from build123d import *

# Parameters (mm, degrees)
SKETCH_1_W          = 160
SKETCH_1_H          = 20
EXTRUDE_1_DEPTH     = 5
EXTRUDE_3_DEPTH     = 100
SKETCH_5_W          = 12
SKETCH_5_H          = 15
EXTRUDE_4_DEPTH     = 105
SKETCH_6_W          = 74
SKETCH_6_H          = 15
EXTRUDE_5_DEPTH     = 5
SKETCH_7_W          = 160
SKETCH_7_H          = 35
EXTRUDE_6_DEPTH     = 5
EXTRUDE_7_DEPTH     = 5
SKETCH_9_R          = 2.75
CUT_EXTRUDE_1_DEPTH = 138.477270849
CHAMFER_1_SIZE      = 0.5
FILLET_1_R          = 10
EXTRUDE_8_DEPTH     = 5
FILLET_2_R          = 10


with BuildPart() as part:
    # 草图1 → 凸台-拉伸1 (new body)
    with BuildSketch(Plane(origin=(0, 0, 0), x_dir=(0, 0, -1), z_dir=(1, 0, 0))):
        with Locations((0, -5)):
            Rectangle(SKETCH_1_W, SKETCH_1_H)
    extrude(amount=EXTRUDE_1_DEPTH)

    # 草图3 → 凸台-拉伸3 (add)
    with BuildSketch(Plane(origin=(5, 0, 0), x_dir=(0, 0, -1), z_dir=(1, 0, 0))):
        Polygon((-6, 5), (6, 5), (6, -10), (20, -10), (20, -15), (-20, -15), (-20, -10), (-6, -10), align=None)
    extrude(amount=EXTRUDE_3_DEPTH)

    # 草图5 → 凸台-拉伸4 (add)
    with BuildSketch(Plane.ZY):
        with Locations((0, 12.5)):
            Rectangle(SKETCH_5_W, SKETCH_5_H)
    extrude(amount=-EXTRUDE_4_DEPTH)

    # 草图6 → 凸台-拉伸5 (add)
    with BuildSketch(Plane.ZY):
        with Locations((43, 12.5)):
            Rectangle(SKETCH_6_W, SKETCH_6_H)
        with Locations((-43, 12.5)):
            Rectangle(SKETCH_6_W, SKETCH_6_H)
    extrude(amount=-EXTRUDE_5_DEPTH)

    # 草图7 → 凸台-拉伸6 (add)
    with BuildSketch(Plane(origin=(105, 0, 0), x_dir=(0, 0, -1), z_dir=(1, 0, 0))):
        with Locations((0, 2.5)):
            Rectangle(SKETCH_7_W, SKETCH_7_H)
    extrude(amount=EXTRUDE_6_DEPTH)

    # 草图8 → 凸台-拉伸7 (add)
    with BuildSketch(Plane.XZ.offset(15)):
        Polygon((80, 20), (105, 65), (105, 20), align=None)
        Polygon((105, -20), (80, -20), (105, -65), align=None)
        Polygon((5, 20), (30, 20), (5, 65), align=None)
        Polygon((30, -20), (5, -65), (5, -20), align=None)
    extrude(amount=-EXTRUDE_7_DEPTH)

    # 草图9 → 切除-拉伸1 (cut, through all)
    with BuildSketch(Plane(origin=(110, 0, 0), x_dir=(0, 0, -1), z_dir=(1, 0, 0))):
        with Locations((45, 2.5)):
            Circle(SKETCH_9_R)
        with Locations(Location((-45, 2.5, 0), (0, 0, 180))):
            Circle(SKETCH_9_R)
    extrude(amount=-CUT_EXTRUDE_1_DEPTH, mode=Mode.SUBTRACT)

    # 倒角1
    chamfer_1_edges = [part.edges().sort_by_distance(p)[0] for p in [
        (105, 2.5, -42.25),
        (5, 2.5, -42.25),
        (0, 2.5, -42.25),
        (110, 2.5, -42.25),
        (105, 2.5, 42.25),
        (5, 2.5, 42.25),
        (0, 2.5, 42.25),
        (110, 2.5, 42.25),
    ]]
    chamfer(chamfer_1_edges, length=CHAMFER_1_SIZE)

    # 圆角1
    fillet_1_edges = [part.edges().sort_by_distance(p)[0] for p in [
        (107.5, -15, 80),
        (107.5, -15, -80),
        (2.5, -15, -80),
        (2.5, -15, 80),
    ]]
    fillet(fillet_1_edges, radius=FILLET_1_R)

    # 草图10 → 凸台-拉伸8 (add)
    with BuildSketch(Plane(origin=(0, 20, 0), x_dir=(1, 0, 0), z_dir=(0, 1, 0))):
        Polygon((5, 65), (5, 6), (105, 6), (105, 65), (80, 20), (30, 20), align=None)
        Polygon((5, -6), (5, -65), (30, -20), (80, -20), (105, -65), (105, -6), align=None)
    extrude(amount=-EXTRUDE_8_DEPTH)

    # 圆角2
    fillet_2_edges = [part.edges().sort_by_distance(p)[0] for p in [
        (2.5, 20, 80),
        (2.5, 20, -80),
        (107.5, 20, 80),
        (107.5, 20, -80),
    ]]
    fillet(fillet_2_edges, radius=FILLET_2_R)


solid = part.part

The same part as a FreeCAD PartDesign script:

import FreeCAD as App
import Part
import Sketcher
from FreeCAD import Vector


def edges_at(feature, points):
    """Names of the edges that pass closest to the given points."""
    edges = feature.Shape.Edges
    near = lambda p: min(range(len(edges)), key=lambda i: edges[i].distToShape(Part.Vertex(*p))[0])
    return sorted({f"Edge{near(p) + 1}" for p in points})

doc = App.newDocument("Part")
body = doc.addObject("PartDesign::Body", "Body")

sketch1 = doc.addObject("Sketcher::SketchObject", "Sketch")
body.addObject(sketch1)
sketch1.AttachmentSupport = (doc.YZ_Plane, [""])
sketch1.MapMode = "FlatFace"
sketch1.addGeometry([
    Part.LineSegment(Vector(5, 80, 0), Vector(-15, 80, 0)),
    Part.LineSegment(Vector(-15, 80, 0), Vector(-15, -80, 0)),
    Part.LineSegment(Vector(-15, -80, 0), Vector(5, -80, 0)),
    Part.LineSegment(Vector(5, -80, 0), Vector(5, 80, 0)),
], False)
sketch1.addConstraint([
    Sketcher.Constraint("Coincident", 0, 2, 1, 1),
    Sketcher.Constraint("Coincident", 1, 2, 2, 1),
    Sketcher.Constraint("Coincident", 2, 2, 3, 1),
    Sketcher.Constraint("Coincident", 3, 2, 0, 1),
    Sketcher.Constraint("Horizontal", 0),
    Sketcher.Constraint("Vertical", 1),
    Sketcher.Constraint("Horizontal", 2),
    Sketcher.Constraint("Vertical", 3),
    Sketcher.Constraint("DistanceX", 0, 2, 0, 1, 20.0),
    Sketcher.Constraint("DistanceY", 1, 2, 1, 1, 160.0),
    Sketcher.Constraint("DistanceX", 0, 2, -1, 1, 15.0),
    Sketcher.Constraint("DistanceY", -1, 1, 0, 2, 80.0),
])
pad1 = doc.addObject("PartDesign::Pad", "Pad")
body.addObject(pad1)
pad1.Profile = sketch1
pad1.Length = 5

sketch2 = doc.addObject("Sketcher::SketchObject", "Sketch001")
body.addObject(sketch2)
sketch2.AttachmentSupport = (doc.YZ_Plane, [""])
sketch2.MapMode = "FlatFace"
sketch2.AttachmentOffset = App.Placement(Vector(0, 0, 5), App.Rotation())
sketch2.addGeometry([
    Part.LineSegment(Vector(5, -6, 0), Vector(5, 6, 0)),
    Part.LineSegment(Vector(5, 6, 0), Vector(-10, 6, 0)),
    Part.LineSegment(Vector(-10, 6, 0), Vector(-10, 20, 0)),
    Part.LineSegment(Vector(-10, 20, 0), Vector(-15, 20, 0)),
    Part.LineSegment(Vector(-15, 20, 0), Vector(-15, -20, 0)),
    Part.LineSegment(Vector(-15, -20, 0), Vector(-10, -20, 0)),
    Part.LineSegment(Vector(-10, -20, 0), Vector(-10, -6, 0)),
    Part.LineSegment(Vector(-10, -6, 0), Vector(5, -6, 0)),
], False)
sketch2.addConstraint([
    Sketcher.Constraint("Coincident", 0, 2, 1, 1),
    Sketcher.Constraint("Coincident", 1, 2, 2, 1),
    Sketcher.Constraint("Coincident", 2, 2, 3, 1),
    Sketcher.Constraint("Coincident", 3, 2, 4, 1),
    Sketcher.Constraint("Coincident", 4, 2, 5, 1),
    Sketcher.Constraint("Coincident", 5, 2, 6, 1),
    Sketcher.Constraint("Coincident", 6, 2, 7, 1),
    Sketcher.Constraint("Coincident", 7, 2, 0, 1),
    Sketcher.Constraint("Vertical", 0),
    Sketcher.Constraint("Horizontal", 1),
    Sketcher.Constraint("Vertical", 2),
    Sketcher.Constraint("Horizontal", 3),
    Sketcher.Constraint("Vertical", 4),
    Sketcher.Constraint("Horizontal", 5),
    Sketcher.Constraint("Vertical", 6),
    Sketcher.Constraint("Horizontal", 7),
    Sketcher.Constraint("Symmetric", 2, 2, 5, 2, -1),
    Sketcher.Constraint("Equal", 2, 6),
    Sketcher.Constraint("DistanceX", 1, 2, 1, 1, 15.0),
    Sketcher.Constraint("DistanceX", 3, 2, 3, 1, 5.0),
    Sketcher.Constraint("DistanceY", 0, 1, 0, 2, 12.0),
    Sketcher.Constraint("DistanceY", 2, 1, 2, 2, 14.0),
    Sketcher.Constraint("DistanceX", -1, 1, 0, 2, 5.0),
])
pad2 = doc.addObject("PartDesign::Pad", "Pad001")
body.addObject(pad2)
pad2.Profile = sketch2
pad2.Length = 100

sketch3 = doc.addObject("Sketcher::SketchObject", "Sketch002")
body.addObject(sketch3)
sketch3.AttachmentSupport = (doc.YZ_Plane, [""])
sketch3.MapMode = "FlatFace"
sketch3.addGeometry([
    Part.LineSegment(Vector(20, -6, 0), Vector(5, -6, 0)),
    Part.LineSegment(Vector(5, -6, 0), Vector(5, 6, 0)),
    Part.LineSegment(Vector(5, 6, 0), Vector(20, 6, 0)),
    Part.LineSegment(Vector(20, 6, 0), Vector(20, -6, 0)),
], False)
sketch3.addConstraint([
    Sketcher.Constraint("Coincident", 0, 2, 1, 1),
    Sketcher.Constraint("Coincident", 1, 2, 2, 1),
    Sketcher.Constraint("Coincident", 2, 2, 3, 1),
    Sketcher.Constraint("Coincident", 3, 2, 0, 1),
    Sketcher.Constraint("Horizontal", 0),
    Sketcher.Constraint("Vertical", 1),
    Sketcher.Constraint("Horizontal", 2),
    Sketcher.Constraint("Vertical", 3),
    Sketcher.Constraint("DistanceX", 0, 2, 0, 1, 15.0),
    Sketcher.Constraint("DistanceY", 1, 1, 1, 2, 12.0),
    Sketcher.Constraint("DistanceX", -1, 1, 0, 2, 5.0),
    Sketcher.Constraint("DistanceY", 0, 2, -1, 1, 6.0),
])
pad3 = doc.addObject("PartDesign::Pad", "Pad002")
body.addObject(pad3)
pad3.Profile = sketch3
pad3.Length = 105

sketch4 = doc.addObject("Sketcher::SketchObject", "Sketch003")
body.addObject(sketch4)
sketch4.AttachmentSupport = (doc.YZ_Plane, [""])
sketch4.MapMode = "FlatFace"
sketch4.addGeometry([
    Part.LineSegment(Vector(20, 6, 0), Vector(5, 6, 0)),
    Part.LineSegment(Vector(5, 6, 0), Vector(5, 80, 0)),
    Part.LineSegment(Vector(5, 80, 0), Vector(20, 80, 0)),
    Part.LineSegment(Vector(20, 80, 0), Vector(20, 6, 0)),
    Part.LineSegment(Vector(20, -80, 0), Vector(5, -80, 0)),
    Part.LineSegment(Vector(5, -80, 0), Vector(5, -6, 0)),
    Part.LineSegment(Vector(5, -6, 0), Vector(20, -6, 0)),
    Part.LineSegment(Vector(20, -6, 0), Vector(20, -80, 0)),
], False)
sketch4.addConstraint([
    Sketcher.Constraint("Coincident", 0, 2, 1, 1),
    Sketcher.Constraint("Coincident", 1, 2, 2, 1),
    Sketcher.Constraint("Coincident", 2, 2, 3, 1),
    Sketcher.Constraint("Coincident", 3, 2, 0, 1),
    Sketcher.Constraint("Coincident", 4, 2, 5, 1),
    Sketcher.Constraint("Coincident", 5, 2, 6, 1),
    Sketcher.Constraint("Coincident", 6, 2, 7, 1),
    Sketcher.Constraint("Coincident", 7, 2, 4, 1),
    Sketcher.Constraint("Horizontal", 0),
    Sketcher.Constraint("Vertical", 1),
    Sketcher.Constraint("Horizontal", 2),
    Sketcher.Constraint("Vertical", 3),
    Sketcher.Constraint("Horizontal", 4),
    Sketcher.Constraint("Vertical", 5),
    Sketcher.Constraint("Horizontal", 6),
    Sketcher.Constraint("Vertical", 7),
    Sketcher.Constraint("Symmetric", 1, 2, 4, 2, -1),
    Sketcher.Constraint("Symmetric", 3, 2, 6, 2, -1),
    Sketcher.Constraint("DistanceX", 0, 2, 0, 1, 15.0),
    Sketcher.Constraint("DistanceY", 1, 1, 1, 2, 74.0),
    Sketcher.Constraint("DistanceX", -1, 1, 0, 2, 5.0),
    Sketcher.Constraint("DistanceY", -1, 1, 0, 2, 6.0),
])
pad4 = doc.addObject("PartDesign::Pad", "Pad003")
body.addObject(pad4)
pad4.Profile = sketch4
pad4.Length = 5

sketch5 = doc.addObject("Sketcher::SketchObject", "Sketch004")
body.addObject(sketch5)
sketch5.AttachmentSupport = (doc.YZ_Plane, [""])
sketch5.MapMode = "FlatFace"
sketch5.AttachmentOffset = App.Placement(Vector(0, 0, 105), App.Rotation())
sketch5.addGeometry([
    Part.LineSegment(Vector(20, 80, 0), Vector(-15, 80, 0)),
    Part.LineSegment(Vector(-15, 80, 0), Vector(-15, -80, 0)),
    Part.LineSegment(Vector(-15, -80, 0), Vector(20, -80, 0)),
    Part.LineSegment(Vector(20, -80, 0), Vector(20, 80, 0)),
], False)
sketch5.addConstraint([
    Sketcher.Constraint("Coincident", 0, 2, 1, 1),
    Sketcher.Constraint("Coincident", 1, 2, 2, 1),
    Sketcher.Constraint("Coincident", 2, 2, 3, 1),
    Sketcher.Constraint("Coincident", 3, 2, 0, 1),
    Sketcher.Constraint("Horizontal", 0),
    Sketcher.Constraint("Vertical", 1),
    Sketcher.Constraint("Horizontal", 2),
    Sketcher.Constraint("Vertical", 3),
    Sketcher.Constraint("DistanceX", 0, 2, 0, 1, 35.0),
    Sketcher.Constraint("DistanceY", 1, 2, 1, 1, 160.0),
    Sketcher.Constraint("DistanceX", 0, 2, -1, 1, 15.0),
    Sketcher.Constraint("DistanceY", -1, 1, 0, 2, 80.0),
])
pad5 = doc.addObject("PartDesign::Pad", "Pad004")
body.addObject(pad5)
pad5.Profile = sketch5
pad5.Length = 5

sketch6 = doc.addObject("Sketcher::SketchObject", "Sketch005")
body.addObject(sketch6)
sketch6.AttachmentSupport = (doc.XZ_Plane, [""])
sketch6.MapMode = "FlatFace"
sketch6.AttachmentOffset = App.Placement(Vector(0, 0, 15), App.Rotation())
sketch6.addGeometry([
    Part.LineSegment(Vector(105, 65, 0), Vector(80, 20, 0)),
    Part.LineSegment(Vector(80, 20, 0), Vector(105, 20, 0)),
    Part.LineSegment(Vector(105, 20, 0), Vector(105, 65, 0)),
    Part.LineSegment(Vector(105, -20, 0), Vector(80, -20, 0)),
    Part.LineSegment(Vector(80, -20, 0), Vector(105, -65, 0)),
    Part.LineSegment(Vector(105, -65, 0), Vector(105, -20, 0)),
    Part.LineSegment(Vector(5, 20, 0), Vector(30, 20, 0)),
    Part.LineSegment(Vector(30, 20, 0), Vector(5, 65, 0)),
    Part.LineSegment(Vector(5, 65, 0), Vector(5, 20, 0)),
    Part.LineSegment(Vector(5, -65, 0), Vector(30, -20, 0)),
    Part.LineSegment(Vector(30, -20, 0), Vector(5, -20, 0)),
    Part.LineSegment(Vector(5, -20, 0), Vector(5, -65, 0)),
], False)
sketch6.addConstraint([
    Sketcher.Constraint("Coincident", 0, 2, 1, 1),
    Sketcher.Constraint("Coincident", 1, 2, 2, 1),
    Sketcher.Constraint("Coincident", 2, 2, 0, 1),
    Sketcher.Constraint("Coincident", 3, 2, 4, 1),
    Sketcher.Constraint("Coincident", 4, 2, 5, 1),
    Sketcher.Constraint("Coincident", 5, 2, 3, 1),
    Sketcher.Constraint("Coincident", 6, 2, 7, 1),
    Sketcher.Constraint("Coincident", 7, 2, 8, 1),
    Sketcher.Constraint("Coincident", 8, 2, 6, 1),
    Sketcher.Constraint("Coincident", 9, 2, 10, 1),
    Sketcher.Constraint("Coincident", 10, 2, 11, 1),
    Sketcher.Constraint("Coincident", 11, 2, 9, 1),
    Sketcher.Constraint("Horizontal", 1),
    Sketcher.Constraint("Vertical", 2),
    Sketcher.Constraint("Horizontal", 3),
    Sketcher.Constraint("Vertical", 5),
    Sketcher.Constraint("Horizontal", 6),
    Sketcher.Constraint("Vertical", 8),
    Sketcher.Constraint("Horizontal", 10),
    Sketcher.Constraint("Vertical", 11),
    Sketcher.Constraint("Symmetric", 0, 2, 3, 2, -1),
    Sketcher.Constraint("Symmetric", 2, 2, 4, 2, -1),
    Sketcher.Constraint("Symmetric", 6, 2, 9, 2, -1),
    Sketcher.Constraint("Symmetric", 7, 2, 11, 2, -1),
    Sketcher.Constraint("Parallel", 4, 7),
    Sketcher.Constraint("Horizontal", 1, 2, 6, 2),
    Sketcher.Constraint("Horizontal", 2, 2, 7, 2),
    Sketcher.Constraint("DistanceX", 1, 1, 1, 2, 25.0),
    Sketcher.Constraint("DistanceY", 2, 1, 2, 2, 45.0),
    Sketcher.Constraint("DistanceX", -1, 1, 0, 2, 80.0),
    Sketcher.Constraint("DistanceY", -1, 1, 0, 2, 20.0),
    Sketcher.Constraint("DistanceX", -1, 1, 6, 2, 30.0),
])
pad6 = doc.addObject("PartDesign::Pad", "Pad005")
body.addObject(pad6)
pad6.Profile = sketch6
pad6.Length = 5
pad6.Reversed = True

sketch7 = doc.addObject("Sketcher::SketchObject", "Sketch006")
body.addObject(sketch7)
sketch7.AttachmentSupport = (doc.YZ_Plane, [""])
sketch7.MapMode = "FlatFace"
sketch7.AttachmentOffset = App.Placement(Vector(0, 0, 110), App.Rotation())
sketch7.addGeometry([
    Part.Circle(Vector(2.5, -45, 0), Vector(0, 0, 1), 2.75),
    Part.Circle(Vector(2.5, 45, 0), Vector(0, 0, 1), 2.75),
], False)
sketch7.addConstraint([
    Sketcher.Constraint("Equal", 0, 1),
    Sketcher.Constraint("Symmetric", 0, 3, 1, 3, -1),
    Sketcher.Constraint("Diameter", 0, 5.5),
    Sketcher.Constraint("DistanceY", 0, 3, -1, 1, 45.0),
    Sketcher.Constraint("DistanceX", -1, 1, 0, 3, 2.5),
])
pocket1 = doc.addObject("PartDesign::Pocket", "Pocket")
body.addObject(pocket1)
pocket1.Profile = sketch7
pocket1.Type = "ThroughAll"
doc.recompute()

chamfer = doc.addObject("PartDesign::Chamfer", "Chamfer")
body.addObject(chamfer)
chamfer.Base = (pocket1, edges_at(pocket1, [
    (105, 2.5, -42.25),
    (5, 2.5, -42.25),
    (0, 2.5, -42.25),
    (110, 2.5, -42.25),
    (105, 2.5, 42.25),
    (5, 2.5, 42.25),
    (0, 2.5, 42.25),
    (110, 2.5, 42.25),
]))
chamfer.Size = 0.5
doc.recompute()

fillet = doc.addObject("PartDesign::Fillet", "Fillet")
body.addObject(fillet)
fillet.Base = (chamfer, edges_at(chamfer, [
    (107.5, -15, 80),
    (107.5, -15, -80),
    (2.5, -15, -80),
    (2.5, -15, 80),
]))
fillet.Radius = 10

sketch8 = doc.addObject("Sketcher::SketchObject", "Sketch007")
body.addObject(sketch8)
sketch8.AttachmentSupport = (doc.XZ_Plane, [""])
sketch8.MapMode = "FlatFace"
sketch8.AttachmentOffset = App.Placement(Vector(0, 0, -20), App.Rotation())
sketch8.addGeometry([
    Part.LineSegment(Vector(5, -65, 0), Vector(5, -6, 0)),
    Part.LineSegment(Vector(5, -6, 0), Vector(105, -6, 0)),
    Part.LineSegment(Vector(105, -6, 0), Vector(105, -65, 0)),
    Part.LineSegment(Vector(105, -65, 0), Vector(80, -20, 0)),
    Part.LineSegment(Vector(80, -20, 0), Vector(30, -20, 0)),
    Part.LineSegment(Vector(30, -20, 0), Vector(5, -65, 0)),
    Part.LineSegment(Vector(5, 6, 0), Vector(5, 65, 0)),
    Part.LineSegment(Vector(5, 65, 0), Vector(30, 20, 0)),
    Part.LineSegment(Vector(30, 20, 0), Vector(80, 20, 0)),
    Part.LineSegment(Vector(80, 20, 0), Vector(105, 65, 0)),
    Part.LineSegment(Vector(105, 65, 0), Vector(105, 6, 0)),
    Part.LineSegment(Vector(105, 6, 0), Vector(5, 6, 0)),
], False)
sketch8.addConstraint([
    Sketcher.Constraint("Coincident", 0, 2, 1, 1),
    Sketcher.Constraint("Coincident", 1, 2, 2, 1),
    Sketcher.Constraint("Coincident", 2, 2, 3, 1),
    Sketcher.Constraint("Coincident", 3, 2, 4, 1),
    Sketcher.Constraint("Coincident", 4, 2, 5, 1),
    Sketcher.Constraint("Coincident", 5, 2, 0, 1),
    Sketcher.Constraint("Coincident", 6, 2, 7, 1),
    Sketcher.Constraint("Coincident", 7, 2, 8, 1),
    Sketcher.Constraint("Coincident", 8, 2, 9, 1),
    Sketcher.Constraint("Coincident", 9, 2, 10, 1),
    Sketcher.Constraint("Coincident", 10, 2, 11, 1),
    Sketcher.Constraint("Coincident", 11, 2, 6, 1),
    Sketcher.Constraint("Vertical", 0),
    Sketcher.Constraint("Horizontal", 1),
    Sketcher.Constraint("Vertical", 2),
    Sketcher.Constraint("Horizontal", 4),
    Sketcher.Constraint("Vertical", 6),
    Sketcher.Constraint("Horizontal", 8),
    Sketcher.Constraint("Vertical", 10),
    Sketcher.Constraint("Horizontal", 11),
    Sketcher.Constraint("Symmetric", 5, 2, 6, 2, -1),
    Sketcher.Constraint("Symmetric", 4, 2, 7, 2, -1),
    Sketcher.Constraint("Symmetric", 2, 2, 9, 2, -1),
    Sketcher.Constraint("Parallel", 3, 7),
    Sketcher.Constraint("Parallel", 5, 9),
    Sketcher.Constraint("Horizontal", 2, 2, 5, 2),
    Sketcher.Constraint("Equal", 2, 6),
    Sketcher.Constraint("DistanceX", 1, 1, 1, 2, 100.0),
    Sketcher.Constraint("DistanceX", 4, 2, 4, 1, 50.0),
    Sketcher.Constraint("DistanceY", 0, 1, 0, 2, 59.0),
    Sketcher.Constraint("DistanceX", -1, 1, 0, 2, 5.0),
    Sketcher.Constraint("DistanceY", 0, 2, -1, 1, 6.0),
    Sketcher.Constraint("DistanceY", 3, 2, -1, 1, 20.0),
])
pad7 = doc.addObject("PartDesign::Pad", "Pad006")
body.addObject(pad7)
pad7.Profile = sketch8
pad7.Length = 5
doc.recompute()

fillet2 = doc.addObject("PartDesign::Fillet", "Fillet001")
body.addObject(fillet2)
fillet2.Base = (pad7, edges_at(pad7, [
    (2.5, 20, 80),
    (2.5, 20, -80),
    (107.5, 20, 80),
    (107.5, 20, -80),
]))
fillet2.Radius = 10

doc.recompute()
